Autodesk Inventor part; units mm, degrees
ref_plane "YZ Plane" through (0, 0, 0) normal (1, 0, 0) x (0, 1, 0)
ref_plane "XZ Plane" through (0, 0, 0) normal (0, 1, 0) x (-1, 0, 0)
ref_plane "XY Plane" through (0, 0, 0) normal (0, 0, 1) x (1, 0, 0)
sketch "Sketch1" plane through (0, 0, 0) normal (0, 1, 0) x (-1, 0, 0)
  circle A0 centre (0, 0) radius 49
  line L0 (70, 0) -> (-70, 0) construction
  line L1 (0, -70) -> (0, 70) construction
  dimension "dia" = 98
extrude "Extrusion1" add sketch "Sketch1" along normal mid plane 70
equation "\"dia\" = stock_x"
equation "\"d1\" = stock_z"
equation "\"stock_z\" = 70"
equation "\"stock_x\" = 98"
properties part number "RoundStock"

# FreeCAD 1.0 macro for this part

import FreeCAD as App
import Part
import Sketcher
from FreeCAD import Vector

doc = App.newDocument("Part")
body = doc.addObject("PartDesign::Body", "Body")

# Sketch on XZ plane
sketch1 = body.newObject("Sketcher::SketchObject", "Sketch")
sketch1.AttachmentSupport = (doc.getObject("XZ_Plane"), [""])
sketch1.MapMode = "FlatFace"
sketch1.addGeometry(Part.Circle(Vector(0, 0, 0), Vector(0, 0, 1), 49), False)
sketch1.addConstraint([
    Sketcher.Constraint("Coincident", 0, 3, -1, 1),
    Sketcher.Constraint("Diameter", 0, 98.0),
])
pad1 = body.newObject("PartDesign::Pad", "Pad")
pad1.Profile = sketch1
pad1.Length = 70
pad1.Midplane = True

doc.recompute()
